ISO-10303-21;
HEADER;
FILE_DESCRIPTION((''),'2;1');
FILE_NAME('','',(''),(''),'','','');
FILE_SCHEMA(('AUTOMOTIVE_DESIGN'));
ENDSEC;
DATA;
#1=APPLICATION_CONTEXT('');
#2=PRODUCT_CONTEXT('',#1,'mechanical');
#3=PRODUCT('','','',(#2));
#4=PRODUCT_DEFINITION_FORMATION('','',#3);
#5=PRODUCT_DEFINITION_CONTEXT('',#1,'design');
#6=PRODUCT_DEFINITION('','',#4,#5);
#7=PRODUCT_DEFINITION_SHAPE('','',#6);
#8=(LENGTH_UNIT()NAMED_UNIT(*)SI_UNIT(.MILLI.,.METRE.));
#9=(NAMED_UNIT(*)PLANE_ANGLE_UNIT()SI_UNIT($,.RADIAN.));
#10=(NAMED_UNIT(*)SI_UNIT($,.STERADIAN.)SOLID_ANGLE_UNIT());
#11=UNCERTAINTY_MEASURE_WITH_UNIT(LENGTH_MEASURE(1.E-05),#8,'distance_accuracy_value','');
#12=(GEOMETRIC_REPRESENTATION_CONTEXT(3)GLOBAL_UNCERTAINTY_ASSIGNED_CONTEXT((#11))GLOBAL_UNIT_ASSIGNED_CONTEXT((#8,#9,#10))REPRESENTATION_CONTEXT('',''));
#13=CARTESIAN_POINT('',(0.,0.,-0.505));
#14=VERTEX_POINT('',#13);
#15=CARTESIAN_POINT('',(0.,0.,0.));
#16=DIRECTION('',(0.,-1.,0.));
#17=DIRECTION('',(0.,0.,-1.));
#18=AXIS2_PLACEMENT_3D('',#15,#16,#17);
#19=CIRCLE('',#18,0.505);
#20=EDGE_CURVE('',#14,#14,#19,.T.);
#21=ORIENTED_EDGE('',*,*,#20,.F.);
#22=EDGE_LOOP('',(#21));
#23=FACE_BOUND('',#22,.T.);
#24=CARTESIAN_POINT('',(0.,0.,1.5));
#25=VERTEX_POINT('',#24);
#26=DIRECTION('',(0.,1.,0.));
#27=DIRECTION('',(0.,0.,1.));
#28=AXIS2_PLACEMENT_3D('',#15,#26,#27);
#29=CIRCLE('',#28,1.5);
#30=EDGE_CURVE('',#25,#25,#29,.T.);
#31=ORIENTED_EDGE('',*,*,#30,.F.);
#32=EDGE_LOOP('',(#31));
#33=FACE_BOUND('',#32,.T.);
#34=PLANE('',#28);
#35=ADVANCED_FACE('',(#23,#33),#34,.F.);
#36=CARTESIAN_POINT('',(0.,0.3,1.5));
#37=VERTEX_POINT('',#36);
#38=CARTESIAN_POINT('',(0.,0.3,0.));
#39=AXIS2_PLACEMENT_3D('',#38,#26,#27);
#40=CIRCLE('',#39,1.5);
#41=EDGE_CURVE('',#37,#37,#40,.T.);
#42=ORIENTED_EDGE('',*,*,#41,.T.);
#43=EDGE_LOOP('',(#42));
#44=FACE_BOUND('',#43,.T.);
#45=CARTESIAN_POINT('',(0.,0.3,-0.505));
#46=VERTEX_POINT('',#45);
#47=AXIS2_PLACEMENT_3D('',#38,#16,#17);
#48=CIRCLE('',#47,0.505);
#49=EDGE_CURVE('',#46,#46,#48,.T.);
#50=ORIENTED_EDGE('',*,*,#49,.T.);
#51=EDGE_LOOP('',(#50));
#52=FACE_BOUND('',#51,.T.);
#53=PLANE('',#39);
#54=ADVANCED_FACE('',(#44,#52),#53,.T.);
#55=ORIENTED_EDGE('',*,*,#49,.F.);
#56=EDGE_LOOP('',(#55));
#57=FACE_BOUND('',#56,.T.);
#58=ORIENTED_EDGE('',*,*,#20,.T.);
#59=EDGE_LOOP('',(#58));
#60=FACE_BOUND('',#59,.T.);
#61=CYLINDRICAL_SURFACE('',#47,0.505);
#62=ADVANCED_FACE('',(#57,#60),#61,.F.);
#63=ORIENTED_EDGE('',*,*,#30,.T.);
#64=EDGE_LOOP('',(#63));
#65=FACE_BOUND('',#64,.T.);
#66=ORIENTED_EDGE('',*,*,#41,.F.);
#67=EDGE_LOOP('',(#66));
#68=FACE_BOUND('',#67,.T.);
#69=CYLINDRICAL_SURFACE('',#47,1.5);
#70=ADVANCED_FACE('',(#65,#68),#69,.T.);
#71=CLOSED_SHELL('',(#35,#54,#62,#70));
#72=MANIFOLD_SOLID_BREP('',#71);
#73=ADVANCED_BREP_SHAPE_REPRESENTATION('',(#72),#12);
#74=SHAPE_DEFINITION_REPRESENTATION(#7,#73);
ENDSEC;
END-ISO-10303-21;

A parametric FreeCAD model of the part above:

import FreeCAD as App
import Part
import Sketcher

V = App.Vector

doc = App.newDocument("Part")
body = doc.addObject("PartDesign::Body", "Body")

# Sketch on XZ plane
sketch1 = doc.addObject("Sketcher::SketchObject", "Sketch")
body.addObject(sketch1)
sketch1.AttachmentSupport = (doc.XZ_Plane, [""])
sketch1.MapMode = "FlatFace"
sketch1.addGeometry(Part.Circle(V(0, 0, 0), V(0, 0, 1), 1.5), False)
sketch1.addConstraint([
    Sketcher.Constraint("Coincident", 0, 3, -1, 1),
    Sketcher.Constraint("Diameter", 0, 3.0),
])
pad1 = doc.addObject("PartDesign::Pad", "Pad")
body.addObject(pad1)
pad1.Profile = sketch1
pad1.Length = 0.3
pad1.Reversed = True

# Sketch on XZ plane
sketch2 = doc.addObject("Sketcher::SketchObject", "Sketch001")
body.addObject(sketch2)
sketch2.AttachmentSupport = (doc.XZ_Plane, [""])
sketch2.MapMode = "FlatFace"
sketch2.addGeometry(Part.Circle(V(0, 0, 0), V(0, 0, 1), 0.5), False)
sketch2.addConstraint([
    Sketcher.Constraint("Coincident", 0, 3, -1, 1),
    Sketcher.Constraint("Diameter", 0, 1.01),
])
pocket1 = doc.addObject("PartDesign::Pocket", "Pocket")
body.addObject(pocket1)
pocket1.Profile = sketch2
pocket1.Type = "ThroughAll"

doc.recompute()
